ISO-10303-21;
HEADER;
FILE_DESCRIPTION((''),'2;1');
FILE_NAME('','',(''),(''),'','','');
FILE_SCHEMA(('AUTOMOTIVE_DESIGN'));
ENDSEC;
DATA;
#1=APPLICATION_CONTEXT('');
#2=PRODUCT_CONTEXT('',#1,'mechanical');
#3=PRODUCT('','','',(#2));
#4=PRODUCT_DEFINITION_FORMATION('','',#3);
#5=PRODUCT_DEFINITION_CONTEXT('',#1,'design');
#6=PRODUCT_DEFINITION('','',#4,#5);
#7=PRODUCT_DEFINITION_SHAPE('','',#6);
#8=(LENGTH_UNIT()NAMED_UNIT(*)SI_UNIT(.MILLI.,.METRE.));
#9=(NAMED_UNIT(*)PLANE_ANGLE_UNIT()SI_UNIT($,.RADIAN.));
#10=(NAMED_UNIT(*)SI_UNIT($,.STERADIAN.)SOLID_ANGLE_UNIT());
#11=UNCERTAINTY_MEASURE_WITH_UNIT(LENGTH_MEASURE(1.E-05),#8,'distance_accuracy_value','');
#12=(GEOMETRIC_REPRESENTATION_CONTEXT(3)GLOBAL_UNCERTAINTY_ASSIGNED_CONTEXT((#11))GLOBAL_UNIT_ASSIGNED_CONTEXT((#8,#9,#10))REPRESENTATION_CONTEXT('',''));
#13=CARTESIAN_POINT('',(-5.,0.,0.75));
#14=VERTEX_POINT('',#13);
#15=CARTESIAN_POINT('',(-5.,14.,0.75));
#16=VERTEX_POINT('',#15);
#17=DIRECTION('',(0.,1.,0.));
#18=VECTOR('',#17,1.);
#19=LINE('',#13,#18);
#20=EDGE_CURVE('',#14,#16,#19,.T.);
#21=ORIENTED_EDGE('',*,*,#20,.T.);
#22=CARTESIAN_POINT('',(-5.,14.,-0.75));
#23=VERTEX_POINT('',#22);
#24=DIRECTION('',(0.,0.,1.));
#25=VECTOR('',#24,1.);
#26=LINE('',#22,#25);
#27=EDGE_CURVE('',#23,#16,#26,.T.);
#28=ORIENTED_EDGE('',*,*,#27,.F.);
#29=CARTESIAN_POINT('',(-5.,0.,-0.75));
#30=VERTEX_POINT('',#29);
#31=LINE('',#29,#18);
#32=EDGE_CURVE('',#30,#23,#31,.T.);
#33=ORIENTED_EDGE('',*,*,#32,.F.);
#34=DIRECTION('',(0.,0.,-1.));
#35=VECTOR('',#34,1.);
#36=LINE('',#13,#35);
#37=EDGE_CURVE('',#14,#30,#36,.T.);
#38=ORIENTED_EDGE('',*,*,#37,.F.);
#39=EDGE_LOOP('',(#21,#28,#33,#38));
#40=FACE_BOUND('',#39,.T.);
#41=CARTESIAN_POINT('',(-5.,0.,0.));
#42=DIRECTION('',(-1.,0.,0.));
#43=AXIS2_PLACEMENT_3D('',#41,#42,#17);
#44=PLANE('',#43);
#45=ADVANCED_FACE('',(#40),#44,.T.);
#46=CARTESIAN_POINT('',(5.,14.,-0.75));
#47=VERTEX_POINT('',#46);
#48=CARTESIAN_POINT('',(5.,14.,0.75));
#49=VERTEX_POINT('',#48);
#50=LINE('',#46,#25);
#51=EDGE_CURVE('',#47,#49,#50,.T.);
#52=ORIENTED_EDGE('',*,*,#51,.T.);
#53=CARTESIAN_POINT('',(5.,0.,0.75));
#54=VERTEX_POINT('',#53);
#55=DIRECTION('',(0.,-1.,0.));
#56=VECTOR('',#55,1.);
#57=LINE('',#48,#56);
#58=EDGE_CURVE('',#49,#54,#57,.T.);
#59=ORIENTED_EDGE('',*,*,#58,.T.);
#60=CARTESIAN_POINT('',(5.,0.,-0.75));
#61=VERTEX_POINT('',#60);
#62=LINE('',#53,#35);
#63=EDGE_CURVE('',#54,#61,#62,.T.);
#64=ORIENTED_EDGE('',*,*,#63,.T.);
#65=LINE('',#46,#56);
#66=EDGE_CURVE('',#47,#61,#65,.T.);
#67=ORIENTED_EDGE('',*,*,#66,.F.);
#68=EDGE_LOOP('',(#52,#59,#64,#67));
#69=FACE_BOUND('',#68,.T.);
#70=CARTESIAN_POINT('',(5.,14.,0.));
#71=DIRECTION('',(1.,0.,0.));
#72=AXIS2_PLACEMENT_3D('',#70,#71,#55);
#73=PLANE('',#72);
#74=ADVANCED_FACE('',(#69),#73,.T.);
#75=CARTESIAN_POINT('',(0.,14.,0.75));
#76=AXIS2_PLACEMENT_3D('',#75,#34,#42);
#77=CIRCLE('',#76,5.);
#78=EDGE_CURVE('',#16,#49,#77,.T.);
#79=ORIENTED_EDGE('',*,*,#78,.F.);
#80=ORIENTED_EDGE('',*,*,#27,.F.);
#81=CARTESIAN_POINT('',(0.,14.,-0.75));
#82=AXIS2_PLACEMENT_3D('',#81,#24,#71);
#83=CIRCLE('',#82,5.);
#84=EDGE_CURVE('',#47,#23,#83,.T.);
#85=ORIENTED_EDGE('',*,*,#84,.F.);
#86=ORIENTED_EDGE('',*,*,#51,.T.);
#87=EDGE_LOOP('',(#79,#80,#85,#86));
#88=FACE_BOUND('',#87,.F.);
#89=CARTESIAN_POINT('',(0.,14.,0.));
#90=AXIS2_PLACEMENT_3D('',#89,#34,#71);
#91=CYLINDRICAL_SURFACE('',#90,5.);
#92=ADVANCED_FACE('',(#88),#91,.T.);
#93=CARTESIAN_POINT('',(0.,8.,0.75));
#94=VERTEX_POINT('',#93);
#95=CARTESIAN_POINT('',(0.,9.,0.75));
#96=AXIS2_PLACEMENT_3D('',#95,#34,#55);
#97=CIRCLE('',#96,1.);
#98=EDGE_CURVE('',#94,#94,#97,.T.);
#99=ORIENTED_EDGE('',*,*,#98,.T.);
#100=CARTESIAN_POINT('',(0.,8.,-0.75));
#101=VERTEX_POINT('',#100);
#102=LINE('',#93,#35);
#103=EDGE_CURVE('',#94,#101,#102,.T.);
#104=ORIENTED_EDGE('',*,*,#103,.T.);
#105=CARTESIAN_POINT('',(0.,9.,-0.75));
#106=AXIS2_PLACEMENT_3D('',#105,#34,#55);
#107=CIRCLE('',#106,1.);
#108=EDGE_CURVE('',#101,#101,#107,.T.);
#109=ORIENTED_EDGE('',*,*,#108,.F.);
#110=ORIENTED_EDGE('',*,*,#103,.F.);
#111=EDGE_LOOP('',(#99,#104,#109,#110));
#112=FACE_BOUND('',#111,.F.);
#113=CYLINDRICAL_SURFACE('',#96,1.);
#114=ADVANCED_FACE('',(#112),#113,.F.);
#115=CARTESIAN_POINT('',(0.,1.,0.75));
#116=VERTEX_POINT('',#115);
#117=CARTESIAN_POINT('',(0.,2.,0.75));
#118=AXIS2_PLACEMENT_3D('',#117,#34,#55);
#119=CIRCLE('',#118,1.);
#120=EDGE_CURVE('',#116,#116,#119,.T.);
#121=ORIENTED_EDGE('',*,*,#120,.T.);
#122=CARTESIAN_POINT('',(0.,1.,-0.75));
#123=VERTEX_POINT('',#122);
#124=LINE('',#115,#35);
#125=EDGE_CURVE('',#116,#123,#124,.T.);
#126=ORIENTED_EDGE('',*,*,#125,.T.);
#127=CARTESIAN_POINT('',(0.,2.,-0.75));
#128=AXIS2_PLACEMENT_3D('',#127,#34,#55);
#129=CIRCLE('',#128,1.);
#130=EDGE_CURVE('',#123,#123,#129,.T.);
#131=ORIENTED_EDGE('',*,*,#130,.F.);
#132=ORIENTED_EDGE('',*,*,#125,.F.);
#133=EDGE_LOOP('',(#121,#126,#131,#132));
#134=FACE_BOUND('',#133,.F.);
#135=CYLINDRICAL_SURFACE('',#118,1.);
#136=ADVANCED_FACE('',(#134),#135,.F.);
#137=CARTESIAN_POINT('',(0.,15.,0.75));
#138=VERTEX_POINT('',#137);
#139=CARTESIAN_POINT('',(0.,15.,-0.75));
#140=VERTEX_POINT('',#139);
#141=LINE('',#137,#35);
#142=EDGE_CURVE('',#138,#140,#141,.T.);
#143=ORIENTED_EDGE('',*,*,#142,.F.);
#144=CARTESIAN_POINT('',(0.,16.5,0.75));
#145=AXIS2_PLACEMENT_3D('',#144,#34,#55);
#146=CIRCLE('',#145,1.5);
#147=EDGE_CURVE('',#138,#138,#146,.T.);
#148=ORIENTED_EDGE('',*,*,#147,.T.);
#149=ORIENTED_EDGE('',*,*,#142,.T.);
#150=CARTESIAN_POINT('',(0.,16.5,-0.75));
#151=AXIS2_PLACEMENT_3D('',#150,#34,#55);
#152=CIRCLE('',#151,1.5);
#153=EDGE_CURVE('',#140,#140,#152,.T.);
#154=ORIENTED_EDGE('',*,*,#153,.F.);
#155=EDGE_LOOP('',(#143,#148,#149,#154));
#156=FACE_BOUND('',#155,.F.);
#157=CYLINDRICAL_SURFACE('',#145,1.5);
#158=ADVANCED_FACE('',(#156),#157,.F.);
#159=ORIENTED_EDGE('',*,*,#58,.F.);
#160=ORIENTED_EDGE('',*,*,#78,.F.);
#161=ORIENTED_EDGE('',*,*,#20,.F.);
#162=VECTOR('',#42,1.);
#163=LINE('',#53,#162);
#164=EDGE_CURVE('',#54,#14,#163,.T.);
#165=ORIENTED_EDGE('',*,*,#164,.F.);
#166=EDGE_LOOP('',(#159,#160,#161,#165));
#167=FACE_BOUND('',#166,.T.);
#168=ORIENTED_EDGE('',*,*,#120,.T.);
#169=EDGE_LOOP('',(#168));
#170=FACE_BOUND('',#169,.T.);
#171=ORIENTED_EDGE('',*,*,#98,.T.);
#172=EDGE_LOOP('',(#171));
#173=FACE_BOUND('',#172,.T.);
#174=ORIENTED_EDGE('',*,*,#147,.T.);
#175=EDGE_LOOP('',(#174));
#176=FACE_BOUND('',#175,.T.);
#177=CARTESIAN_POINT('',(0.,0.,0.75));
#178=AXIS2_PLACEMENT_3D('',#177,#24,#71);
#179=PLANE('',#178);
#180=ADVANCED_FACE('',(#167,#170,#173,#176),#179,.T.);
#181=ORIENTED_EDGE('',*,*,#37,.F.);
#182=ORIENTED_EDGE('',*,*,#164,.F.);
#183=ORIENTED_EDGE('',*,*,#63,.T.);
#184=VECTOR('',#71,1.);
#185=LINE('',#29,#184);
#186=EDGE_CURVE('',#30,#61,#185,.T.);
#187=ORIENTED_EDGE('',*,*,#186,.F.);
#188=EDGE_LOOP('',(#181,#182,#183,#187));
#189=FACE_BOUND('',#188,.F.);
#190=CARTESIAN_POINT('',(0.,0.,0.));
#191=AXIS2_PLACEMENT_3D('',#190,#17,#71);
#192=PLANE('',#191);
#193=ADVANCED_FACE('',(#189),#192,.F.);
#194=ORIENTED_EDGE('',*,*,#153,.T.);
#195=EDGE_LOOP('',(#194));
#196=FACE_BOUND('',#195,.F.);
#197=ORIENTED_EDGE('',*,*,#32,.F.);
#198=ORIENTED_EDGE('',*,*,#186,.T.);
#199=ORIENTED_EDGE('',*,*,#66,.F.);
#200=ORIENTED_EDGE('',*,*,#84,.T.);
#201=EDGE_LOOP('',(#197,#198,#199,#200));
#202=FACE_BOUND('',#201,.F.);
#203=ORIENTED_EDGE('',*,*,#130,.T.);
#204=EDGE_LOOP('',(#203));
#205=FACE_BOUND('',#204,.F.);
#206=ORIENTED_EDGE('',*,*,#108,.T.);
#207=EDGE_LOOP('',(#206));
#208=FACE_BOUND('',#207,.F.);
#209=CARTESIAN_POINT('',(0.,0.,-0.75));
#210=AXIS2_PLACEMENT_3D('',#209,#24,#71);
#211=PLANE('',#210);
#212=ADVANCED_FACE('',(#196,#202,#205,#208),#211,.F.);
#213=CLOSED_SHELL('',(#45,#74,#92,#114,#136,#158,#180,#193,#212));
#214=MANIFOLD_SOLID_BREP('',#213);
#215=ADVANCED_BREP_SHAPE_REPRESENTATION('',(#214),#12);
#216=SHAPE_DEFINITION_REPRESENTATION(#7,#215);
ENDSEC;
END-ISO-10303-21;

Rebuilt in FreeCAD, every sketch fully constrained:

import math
import FreeCAD as App
import Part
import Sketcher

V = App.Vector
Q = App.Units.Quantity

doc = App.newDocument("Part")
body = doc.addObject("PartDesign::Body", "Body")

# Sketch on XY plane
sketch1 = body.newObject("Sketcher::SketchObject", "Sketch")
sketch1.AttachmentSupport = (doc.getObject("XY_Plane"), [""])
sketch1.MapMode = "FlatFace"
sketch1.addGeometry([
    Part.LineSegment(V(5, 0, 0), V(5, 14, 0)),
    Part.ArcOfCircle(Part.Circle(V(0, 14, 0), V(0, 0, 1), 5), math.radians(0), math.radians(180)),
    Part.LineSegment(V(-5, 14, 0), V(-5, 0, 0)),
    Part.LineSegment(V(-5, 0, 0), V(5, 0, 0)),
], False)
sketch1.addConstraint([
    Sketcher.Constraint("Tangent", 0, 2, 1, 1),
    Sketcher.Constraint("Tangent", 1, 2, 2, 1),
    Sketcher.Constraint("Coincident", 2, 2, 3, 1),
    Sketcher.Constraint("Coincident", 3, 2, 0, 1),
    Sketcher.Constraint("Vertical", 0),
    Sketcher.Constraint("Vertical", 2),
    Sketcher.Constraint("Horizontal", 3),
    Sketcher.Constraint("Symmetric", 2, 2, 3, 2, -1, 1),
    Sketcher.Constraint("Radius", 1, Q("5 mm")),
    Sketcher.Constraint("DistanceY", 0, 1, 0, 2, Q("14 mm")),
])
pad1 = body.newObject("PartDesign::Pad", "Pad")
pad1.Profile = sketch1
pad1.Length = 1.5
pad1.Midplane = True

# Sketch on XY plane
sketch2 = body.newObject("Sketcher::SketchObject", "Sketch001")
sketch2.AttachmentSupport = (doc.getObject("XY_Plane"), [""])
sketch2.MapMode = "FlatFace"
sketch2.AttachmentOffset = App.Placement(V(0, 0, 0.75), App.Rotation())
sketch2.addGeometry([
    Part.Circle(V(0, -12.5, 0), V(0, 0, 1), 1.5),
    Part.Circle(V(0, 16.5, 0), V(0, 0, 1), 1.5),
], False)
sketch2.addConstraint([
    Sketcher.Constraint("Equal", 0, 1),
    Sketcher.Constraint("PointOnObject", 0, 3, -2),
    Sketcher.Constraint("PointOnObject", 1, 3, -2),
    Sketcher.Constraint("Diameter", 0, Q("3 mm")),
    Sketcher.Constraint("DistanceY", 0, 3, 1, 3, Q("29 mm")),
    Sketcher.Constraint("DistanceY", 0, 3, -1, 1, Q("12.5 mm")),
])
doc.recompute()
hole = body.newObject("PartDesign::Hole", "Hole")
hole.Profile = sketch2
hole.ThreadType = "None"
hole.Diameter = 3
hole.DepthType = "ThroughAll"

# Sketch on XY plane
sketch3 = body.newObject("Sketcher::SketchObject", "Sketch002")
sketch3.AttachmentSupport = (doc.getObject("XY_Plane"), [""])
sketch3.MapMode = "FlatFace"
sketch3.AttachmentOffset = App.Placement(V(0, 0, 0.75), App.Rotation())
sketch3.addGeometry([
    Part.Circle(V(0, 2, 0), V(0, 0, 1), 1),
    Part.Circle(V(0, 9, 0), V(0, 0, 1), 1),
], False)
sketch3.addConstraint([
    Sketcher.Constraint("Equal", 0, 1),
    Sketcher.Constraint("PointOnObject", 0, 3, -2),
    Sketcher.Constraint("PointOnObject", 1, 3, -2),
    Sketcher.Constraint("Diameter", 0, Q("2 mm")),
    Sketcher.Constraint("DistanceY", -1, 1, 0, 3, Q("2 mm")),
    Sketcher.Constraint("DistanceY", -1, 1, 1, 3, Q("9 mm")),
])
doc.recompute()
hole2 = body.newObject("PartDesign::Hole", "Hole001")
hole2.Profile = sketch3
hole2.ThreadType = "None"
hole2.Diameter = 2
hole2.DepthType = "ThroughAll"

doc.recompute()
